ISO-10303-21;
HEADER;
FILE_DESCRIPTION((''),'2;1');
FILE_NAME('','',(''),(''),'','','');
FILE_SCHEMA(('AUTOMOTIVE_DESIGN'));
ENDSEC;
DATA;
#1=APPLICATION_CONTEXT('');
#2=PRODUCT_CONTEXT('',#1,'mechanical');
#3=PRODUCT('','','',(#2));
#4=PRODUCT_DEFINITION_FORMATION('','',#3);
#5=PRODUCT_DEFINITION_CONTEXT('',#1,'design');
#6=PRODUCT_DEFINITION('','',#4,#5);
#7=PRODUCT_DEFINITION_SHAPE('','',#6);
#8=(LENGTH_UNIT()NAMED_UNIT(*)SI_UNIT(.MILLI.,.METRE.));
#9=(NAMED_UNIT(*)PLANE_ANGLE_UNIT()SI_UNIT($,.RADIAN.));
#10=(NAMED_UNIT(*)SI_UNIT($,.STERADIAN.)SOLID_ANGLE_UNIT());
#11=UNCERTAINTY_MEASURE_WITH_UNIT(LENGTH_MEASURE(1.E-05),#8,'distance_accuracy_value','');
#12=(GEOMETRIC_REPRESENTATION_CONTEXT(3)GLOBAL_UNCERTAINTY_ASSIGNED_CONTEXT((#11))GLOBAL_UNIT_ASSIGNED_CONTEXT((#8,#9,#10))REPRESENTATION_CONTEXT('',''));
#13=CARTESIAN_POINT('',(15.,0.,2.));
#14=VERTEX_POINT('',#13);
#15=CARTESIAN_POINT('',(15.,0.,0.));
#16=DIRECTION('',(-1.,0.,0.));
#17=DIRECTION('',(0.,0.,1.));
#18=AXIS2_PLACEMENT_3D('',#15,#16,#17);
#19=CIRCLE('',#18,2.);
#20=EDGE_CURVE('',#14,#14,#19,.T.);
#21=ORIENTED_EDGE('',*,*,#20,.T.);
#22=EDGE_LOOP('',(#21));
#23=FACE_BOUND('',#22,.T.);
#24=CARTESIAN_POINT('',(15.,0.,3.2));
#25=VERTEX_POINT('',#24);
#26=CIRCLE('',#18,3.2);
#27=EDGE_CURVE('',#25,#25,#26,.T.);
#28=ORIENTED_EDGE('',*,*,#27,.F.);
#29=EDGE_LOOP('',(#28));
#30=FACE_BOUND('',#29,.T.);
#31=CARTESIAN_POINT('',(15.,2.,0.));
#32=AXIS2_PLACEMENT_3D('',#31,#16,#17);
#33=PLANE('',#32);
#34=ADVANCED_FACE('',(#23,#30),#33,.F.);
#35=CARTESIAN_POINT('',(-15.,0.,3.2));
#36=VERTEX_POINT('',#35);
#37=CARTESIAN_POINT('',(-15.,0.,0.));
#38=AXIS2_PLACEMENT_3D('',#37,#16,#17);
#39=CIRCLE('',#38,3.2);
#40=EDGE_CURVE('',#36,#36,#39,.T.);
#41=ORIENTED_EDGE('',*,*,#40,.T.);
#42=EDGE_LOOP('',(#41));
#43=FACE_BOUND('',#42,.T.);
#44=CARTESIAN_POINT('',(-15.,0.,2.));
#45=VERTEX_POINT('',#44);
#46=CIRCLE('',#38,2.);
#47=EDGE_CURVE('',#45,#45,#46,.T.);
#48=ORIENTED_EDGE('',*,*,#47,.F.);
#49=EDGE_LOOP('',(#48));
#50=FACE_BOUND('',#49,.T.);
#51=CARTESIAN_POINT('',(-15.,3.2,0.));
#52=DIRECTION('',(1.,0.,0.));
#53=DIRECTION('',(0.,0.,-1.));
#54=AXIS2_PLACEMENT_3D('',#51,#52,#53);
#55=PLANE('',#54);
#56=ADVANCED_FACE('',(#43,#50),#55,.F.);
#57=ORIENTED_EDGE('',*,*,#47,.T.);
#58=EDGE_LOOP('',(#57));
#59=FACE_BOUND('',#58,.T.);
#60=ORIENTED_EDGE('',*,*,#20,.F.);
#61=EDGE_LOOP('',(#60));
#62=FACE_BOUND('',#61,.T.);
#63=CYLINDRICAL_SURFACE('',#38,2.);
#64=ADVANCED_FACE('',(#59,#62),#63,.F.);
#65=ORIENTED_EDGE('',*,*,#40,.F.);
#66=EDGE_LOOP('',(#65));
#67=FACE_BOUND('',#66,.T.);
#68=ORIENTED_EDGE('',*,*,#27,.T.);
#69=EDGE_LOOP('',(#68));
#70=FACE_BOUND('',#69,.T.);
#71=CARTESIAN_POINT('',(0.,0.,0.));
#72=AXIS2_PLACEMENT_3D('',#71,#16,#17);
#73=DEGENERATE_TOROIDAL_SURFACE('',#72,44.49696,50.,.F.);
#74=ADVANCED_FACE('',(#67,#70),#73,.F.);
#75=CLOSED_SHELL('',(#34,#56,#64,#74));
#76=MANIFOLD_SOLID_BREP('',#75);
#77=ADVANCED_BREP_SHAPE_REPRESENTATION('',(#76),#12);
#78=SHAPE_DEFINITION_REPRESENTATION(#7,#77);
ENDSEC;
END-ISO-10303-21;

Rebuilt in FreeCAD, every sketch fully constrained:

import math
import FreeCAD as App
import Part
import Sketcher
from FreeCAD import Vector
Q = App.Units.Quantity

doc = App.newDocument("Part")
body = doc.addObject("PartDesign::Body", "Body")

# Sketch on XY plane
sketch1 = body.newObject("Sketcher::SketchObject", "Sketch")
sketch1.AttachmentSupport = (doc.getObject("XY_Plane"), [""])
sketch1.MapMode = "FlatFace"
sketch1.addGeometry(Part.LineSegment(Vector(-15, 3.2, 0), Vector(-15, 2, 0)), False)
sketch1.addGeometry(Part.LineSegment(Vector(-15, 2, 0), Vector(15, 2, 0)), False)
sketch1.addGeometry(Part.LineSegment(Vector(15, 2, 0), Vector(15, 3.2, 0)), False)
sketch1.addGeometry(Part.ArcOfCircle(Part.Circle(Vector(0, -44.5, 0), Vector(0, 0, 1), 50), math.radians(73), math.radians(107)), False)
sketch1.addConstraint(Sketcher.Constraint("Coincident", 0, 2, 1, 1))
sketch1.addConstraint(Sketcher.Constraint("Coincident", 1, 2, 2, 1))
sketch1.addConstraint(Sketcher.Constraint("Coincident", 2, 2, 3, 1))
sketch1.addConstraint(Sketcher.Constraint("Coincident", 3, 2, 0, 1))
sketch1.addConstraint(Sketcher.Constraint("Vertical", 0))
sketch1.addConstraint(Sketcher.Constraint("Horizontal", 1))
sketch1.addConstraint(Sketcher.Constraint("Vertical", 2))
sketch1.addConstraint(Sketcher.Constraint("Symmetric", 2, 2, 3, 2, -2))
sketch1.addConstraint(Sketcher.Constraint("Radius", 3, Q("50 mm")))
sketch1.addConstraint(Sketcher.Constraint("DistanceX", 1, 1, 1, 2, Q("30 mm")))
sketch1.addConstraint(Sketcher.Constraint("DistanceY", 0, 2, 0, 1, Q("1.2 mm")))
sketch1.addConstraint(Sketcher.Constraint("DistanceY", -1, 1, 0, 2, Q("2 mm")))
revolution = body.newObject("PartDesign::Revolution", "Revolution")
revolution.Profile = sketch1
revolution.ReferenceAxis = (sketch1, ["H_Axis"])
revolution.Angle = 360

doc.recompute()
